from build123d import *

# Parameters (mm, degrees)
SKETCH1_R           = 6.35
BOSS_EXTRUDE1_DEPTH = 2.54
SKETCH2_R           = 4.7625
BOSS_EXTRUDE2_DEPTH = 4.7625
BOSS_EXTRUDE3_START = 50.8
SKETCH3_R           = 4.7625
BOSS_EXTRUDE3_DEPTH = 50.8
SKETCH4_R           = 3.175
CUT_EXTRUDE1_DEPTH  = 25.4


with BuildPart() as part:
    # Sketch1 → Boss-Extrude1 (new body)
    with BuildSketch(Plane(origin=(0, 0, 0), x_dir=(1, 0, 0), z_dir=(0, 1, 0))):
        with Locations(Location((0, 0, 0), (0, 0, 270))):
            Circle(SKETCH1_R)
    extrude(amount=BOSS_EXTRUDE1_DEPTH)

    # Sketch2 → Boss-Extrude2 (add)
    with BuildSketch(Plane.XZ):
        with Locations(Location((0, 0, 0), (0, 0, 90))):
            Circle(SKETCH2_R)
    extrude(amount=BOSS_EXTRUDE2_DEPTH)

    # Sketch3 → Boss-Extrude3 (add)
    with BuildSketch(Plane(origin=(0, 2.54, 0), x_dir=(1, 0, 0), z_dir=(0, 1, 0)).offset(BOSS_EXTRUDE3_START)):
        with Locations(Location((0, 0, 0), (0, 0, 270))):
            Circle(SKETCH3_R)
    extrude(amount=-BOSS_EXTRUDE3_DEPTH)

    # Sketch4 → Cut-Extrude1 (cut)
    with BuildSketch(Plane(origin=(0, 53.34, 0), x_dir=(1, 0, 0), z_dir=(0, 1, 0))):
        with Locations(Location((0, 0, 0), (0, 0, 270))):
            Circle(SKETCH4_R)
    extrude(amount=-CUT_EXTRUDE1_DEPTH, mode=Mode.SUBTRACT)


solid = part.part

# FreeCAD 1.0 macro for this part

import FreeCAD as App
import Part
import Sketcher
Q = App.Units.Quantity

doc = App.newDocument("Part")
params = doc.addObject("Spreadsheet::Sheet", "Params")
for row, (alias, value) in enumerate([
    ("sketch1_diameter", "0.5 in"),
    ("pad1_length", "0.1 in"),
    ("sketch2_diameter", "0.375 in"),
    ("pad2_length", "0.1875 in"),
    ("sketch3_diameter", "0.375 in"),
    ("pad3_length", "2 in"),
    ("sketch4_diameter", "0.25 in"),
    ("pocket1_length", "1 in"),
], start=1):
    params.set(f"A{row}", alias)
    params.set(f"B{row}", "=" + value)
    params.setAlias(f"B{row}", alias)

body = doc.addObject("PartDesign::Body", "Body")

# Sketch on XZ plane
sketch1 = body.newObject("Sketcher::SketchObject", "Sketch")
sketch1.AttachmentSupport = (doc.getObject("XZ_Plane"), [""])
sketch1.MapMode = "FlatFace"
sketch1.addGeometry(Part.Circle(App.Vector(0, 0, 0), App.Vector(0, 0, 1), 6), False)
sketch1.addConstraint(Sketcher.Constraint("Coincident", 0, 3, -1, 1))
sketch1.addConstraint(Sketcher.Constraint("Diameter", 0, Q("0.5 in")))
sketch1.setExpression("Constraints[1]", "Params.sketch1_diameter")
pad1 = body.newObject("PartDesign::Pad", "Pad")
pad1.Profile = sketch1
pad1.setExpression("Length", "Params.pad1_length")
pad1.Reversed = True

# Sketch on XZ plane
sketch2 = body.newObject("Sketcher::SketchObject", "Sketch001")
sketch2.AttachmentSupport = (doc.getObject("XZ_Plane"), [""])
sketch2.MapMode = "FlatFace"
sketch2.addGeometry(Part.Circle(App.Vector(0, 0, 0), App.Vector(0, 0, 1), 4.8), False)
sketch2.addConstraint(Sketcher.Constraint("Coincident", 0, 3, -1, 1))
sketch2.addConstraint(Sketcher.Constraint("Diameter", 0, Q("0.375 in")))
sketch2.setExpression("Constraints[1]", "Params.sketch2_diameter")
pad2 = body.newObject("PartDesign::Pad", "Pad001")
pad2.Profile = sketch2
pad2.setExpression("Length", "Params.pad2_length")

# Sketch on XZ plane
sketch3 = body.newObject("Sketcher::SketchObject", "Sketch002")
sketch3.AttachmentSupport = (doc.getObject("XZ_Plane"), [""])
sketch3.MapMode = "FlatFace"
sketch3.AttachmentOffset = App.Placement(App.Vector(0, 0, -2.1 * 25.4), App.Rotation())
sketch3.addGeometry(Part.Circle(App.Vector(0, 0, 0), App.Vector(0, 0, 1), 4.8), False)
sketch3.addConstraint(Sketcher.Constraint("Coincident", 0, 3, -1, 1))
sketch3.addConstraint(Sketcher.Constraint("Diameter", 0, Q("0.375 in")))
sketch3.setExpression("Constraints[1]", "Params.sketch3_diameter")
pad3 = body.newObject("PartDesign::Pad", "Pad002")
pad3.Profile = sketch3
pad3.setExpression("Length", "Params.pad3_length")

# Sketch on XZ plane
sketch4 = body.newObject("Sketcher::SketchObject", "Sketch003")
sketch4.AttachmentSupport = (doc.getObject("XZ_Plane"), [""])
sketch4.MapMode = "FlatFace"
sketch4.AttachmentOffset = App.Placement(App.Vector(0, 0, -2.1 * 25.4), App.Rotation())
sketch4.addGeometry(Part.Circle(App.Vector(0, 0, 0), App.Vector(0, 0, 1), 3.2), False)
sketch4.addConstraint(Sketcher.Constraint("Coincident", 0, 3, -1, 1))
sketch4.addConstraint(Sketcher.Constraint("Diameter", 0, Q("0.25 in")))
sketch4.setExpression("Constraints[1]", "Params.sketch4_diameter")
pocket1 = body.newObject("PartDesign::Pocket", "Pocket")
pocket1.Profile = sketch4
pocket1.setExpression("Length", "Params.pocket1_length")
pocket1.Reversed = True

doc.recompute()
